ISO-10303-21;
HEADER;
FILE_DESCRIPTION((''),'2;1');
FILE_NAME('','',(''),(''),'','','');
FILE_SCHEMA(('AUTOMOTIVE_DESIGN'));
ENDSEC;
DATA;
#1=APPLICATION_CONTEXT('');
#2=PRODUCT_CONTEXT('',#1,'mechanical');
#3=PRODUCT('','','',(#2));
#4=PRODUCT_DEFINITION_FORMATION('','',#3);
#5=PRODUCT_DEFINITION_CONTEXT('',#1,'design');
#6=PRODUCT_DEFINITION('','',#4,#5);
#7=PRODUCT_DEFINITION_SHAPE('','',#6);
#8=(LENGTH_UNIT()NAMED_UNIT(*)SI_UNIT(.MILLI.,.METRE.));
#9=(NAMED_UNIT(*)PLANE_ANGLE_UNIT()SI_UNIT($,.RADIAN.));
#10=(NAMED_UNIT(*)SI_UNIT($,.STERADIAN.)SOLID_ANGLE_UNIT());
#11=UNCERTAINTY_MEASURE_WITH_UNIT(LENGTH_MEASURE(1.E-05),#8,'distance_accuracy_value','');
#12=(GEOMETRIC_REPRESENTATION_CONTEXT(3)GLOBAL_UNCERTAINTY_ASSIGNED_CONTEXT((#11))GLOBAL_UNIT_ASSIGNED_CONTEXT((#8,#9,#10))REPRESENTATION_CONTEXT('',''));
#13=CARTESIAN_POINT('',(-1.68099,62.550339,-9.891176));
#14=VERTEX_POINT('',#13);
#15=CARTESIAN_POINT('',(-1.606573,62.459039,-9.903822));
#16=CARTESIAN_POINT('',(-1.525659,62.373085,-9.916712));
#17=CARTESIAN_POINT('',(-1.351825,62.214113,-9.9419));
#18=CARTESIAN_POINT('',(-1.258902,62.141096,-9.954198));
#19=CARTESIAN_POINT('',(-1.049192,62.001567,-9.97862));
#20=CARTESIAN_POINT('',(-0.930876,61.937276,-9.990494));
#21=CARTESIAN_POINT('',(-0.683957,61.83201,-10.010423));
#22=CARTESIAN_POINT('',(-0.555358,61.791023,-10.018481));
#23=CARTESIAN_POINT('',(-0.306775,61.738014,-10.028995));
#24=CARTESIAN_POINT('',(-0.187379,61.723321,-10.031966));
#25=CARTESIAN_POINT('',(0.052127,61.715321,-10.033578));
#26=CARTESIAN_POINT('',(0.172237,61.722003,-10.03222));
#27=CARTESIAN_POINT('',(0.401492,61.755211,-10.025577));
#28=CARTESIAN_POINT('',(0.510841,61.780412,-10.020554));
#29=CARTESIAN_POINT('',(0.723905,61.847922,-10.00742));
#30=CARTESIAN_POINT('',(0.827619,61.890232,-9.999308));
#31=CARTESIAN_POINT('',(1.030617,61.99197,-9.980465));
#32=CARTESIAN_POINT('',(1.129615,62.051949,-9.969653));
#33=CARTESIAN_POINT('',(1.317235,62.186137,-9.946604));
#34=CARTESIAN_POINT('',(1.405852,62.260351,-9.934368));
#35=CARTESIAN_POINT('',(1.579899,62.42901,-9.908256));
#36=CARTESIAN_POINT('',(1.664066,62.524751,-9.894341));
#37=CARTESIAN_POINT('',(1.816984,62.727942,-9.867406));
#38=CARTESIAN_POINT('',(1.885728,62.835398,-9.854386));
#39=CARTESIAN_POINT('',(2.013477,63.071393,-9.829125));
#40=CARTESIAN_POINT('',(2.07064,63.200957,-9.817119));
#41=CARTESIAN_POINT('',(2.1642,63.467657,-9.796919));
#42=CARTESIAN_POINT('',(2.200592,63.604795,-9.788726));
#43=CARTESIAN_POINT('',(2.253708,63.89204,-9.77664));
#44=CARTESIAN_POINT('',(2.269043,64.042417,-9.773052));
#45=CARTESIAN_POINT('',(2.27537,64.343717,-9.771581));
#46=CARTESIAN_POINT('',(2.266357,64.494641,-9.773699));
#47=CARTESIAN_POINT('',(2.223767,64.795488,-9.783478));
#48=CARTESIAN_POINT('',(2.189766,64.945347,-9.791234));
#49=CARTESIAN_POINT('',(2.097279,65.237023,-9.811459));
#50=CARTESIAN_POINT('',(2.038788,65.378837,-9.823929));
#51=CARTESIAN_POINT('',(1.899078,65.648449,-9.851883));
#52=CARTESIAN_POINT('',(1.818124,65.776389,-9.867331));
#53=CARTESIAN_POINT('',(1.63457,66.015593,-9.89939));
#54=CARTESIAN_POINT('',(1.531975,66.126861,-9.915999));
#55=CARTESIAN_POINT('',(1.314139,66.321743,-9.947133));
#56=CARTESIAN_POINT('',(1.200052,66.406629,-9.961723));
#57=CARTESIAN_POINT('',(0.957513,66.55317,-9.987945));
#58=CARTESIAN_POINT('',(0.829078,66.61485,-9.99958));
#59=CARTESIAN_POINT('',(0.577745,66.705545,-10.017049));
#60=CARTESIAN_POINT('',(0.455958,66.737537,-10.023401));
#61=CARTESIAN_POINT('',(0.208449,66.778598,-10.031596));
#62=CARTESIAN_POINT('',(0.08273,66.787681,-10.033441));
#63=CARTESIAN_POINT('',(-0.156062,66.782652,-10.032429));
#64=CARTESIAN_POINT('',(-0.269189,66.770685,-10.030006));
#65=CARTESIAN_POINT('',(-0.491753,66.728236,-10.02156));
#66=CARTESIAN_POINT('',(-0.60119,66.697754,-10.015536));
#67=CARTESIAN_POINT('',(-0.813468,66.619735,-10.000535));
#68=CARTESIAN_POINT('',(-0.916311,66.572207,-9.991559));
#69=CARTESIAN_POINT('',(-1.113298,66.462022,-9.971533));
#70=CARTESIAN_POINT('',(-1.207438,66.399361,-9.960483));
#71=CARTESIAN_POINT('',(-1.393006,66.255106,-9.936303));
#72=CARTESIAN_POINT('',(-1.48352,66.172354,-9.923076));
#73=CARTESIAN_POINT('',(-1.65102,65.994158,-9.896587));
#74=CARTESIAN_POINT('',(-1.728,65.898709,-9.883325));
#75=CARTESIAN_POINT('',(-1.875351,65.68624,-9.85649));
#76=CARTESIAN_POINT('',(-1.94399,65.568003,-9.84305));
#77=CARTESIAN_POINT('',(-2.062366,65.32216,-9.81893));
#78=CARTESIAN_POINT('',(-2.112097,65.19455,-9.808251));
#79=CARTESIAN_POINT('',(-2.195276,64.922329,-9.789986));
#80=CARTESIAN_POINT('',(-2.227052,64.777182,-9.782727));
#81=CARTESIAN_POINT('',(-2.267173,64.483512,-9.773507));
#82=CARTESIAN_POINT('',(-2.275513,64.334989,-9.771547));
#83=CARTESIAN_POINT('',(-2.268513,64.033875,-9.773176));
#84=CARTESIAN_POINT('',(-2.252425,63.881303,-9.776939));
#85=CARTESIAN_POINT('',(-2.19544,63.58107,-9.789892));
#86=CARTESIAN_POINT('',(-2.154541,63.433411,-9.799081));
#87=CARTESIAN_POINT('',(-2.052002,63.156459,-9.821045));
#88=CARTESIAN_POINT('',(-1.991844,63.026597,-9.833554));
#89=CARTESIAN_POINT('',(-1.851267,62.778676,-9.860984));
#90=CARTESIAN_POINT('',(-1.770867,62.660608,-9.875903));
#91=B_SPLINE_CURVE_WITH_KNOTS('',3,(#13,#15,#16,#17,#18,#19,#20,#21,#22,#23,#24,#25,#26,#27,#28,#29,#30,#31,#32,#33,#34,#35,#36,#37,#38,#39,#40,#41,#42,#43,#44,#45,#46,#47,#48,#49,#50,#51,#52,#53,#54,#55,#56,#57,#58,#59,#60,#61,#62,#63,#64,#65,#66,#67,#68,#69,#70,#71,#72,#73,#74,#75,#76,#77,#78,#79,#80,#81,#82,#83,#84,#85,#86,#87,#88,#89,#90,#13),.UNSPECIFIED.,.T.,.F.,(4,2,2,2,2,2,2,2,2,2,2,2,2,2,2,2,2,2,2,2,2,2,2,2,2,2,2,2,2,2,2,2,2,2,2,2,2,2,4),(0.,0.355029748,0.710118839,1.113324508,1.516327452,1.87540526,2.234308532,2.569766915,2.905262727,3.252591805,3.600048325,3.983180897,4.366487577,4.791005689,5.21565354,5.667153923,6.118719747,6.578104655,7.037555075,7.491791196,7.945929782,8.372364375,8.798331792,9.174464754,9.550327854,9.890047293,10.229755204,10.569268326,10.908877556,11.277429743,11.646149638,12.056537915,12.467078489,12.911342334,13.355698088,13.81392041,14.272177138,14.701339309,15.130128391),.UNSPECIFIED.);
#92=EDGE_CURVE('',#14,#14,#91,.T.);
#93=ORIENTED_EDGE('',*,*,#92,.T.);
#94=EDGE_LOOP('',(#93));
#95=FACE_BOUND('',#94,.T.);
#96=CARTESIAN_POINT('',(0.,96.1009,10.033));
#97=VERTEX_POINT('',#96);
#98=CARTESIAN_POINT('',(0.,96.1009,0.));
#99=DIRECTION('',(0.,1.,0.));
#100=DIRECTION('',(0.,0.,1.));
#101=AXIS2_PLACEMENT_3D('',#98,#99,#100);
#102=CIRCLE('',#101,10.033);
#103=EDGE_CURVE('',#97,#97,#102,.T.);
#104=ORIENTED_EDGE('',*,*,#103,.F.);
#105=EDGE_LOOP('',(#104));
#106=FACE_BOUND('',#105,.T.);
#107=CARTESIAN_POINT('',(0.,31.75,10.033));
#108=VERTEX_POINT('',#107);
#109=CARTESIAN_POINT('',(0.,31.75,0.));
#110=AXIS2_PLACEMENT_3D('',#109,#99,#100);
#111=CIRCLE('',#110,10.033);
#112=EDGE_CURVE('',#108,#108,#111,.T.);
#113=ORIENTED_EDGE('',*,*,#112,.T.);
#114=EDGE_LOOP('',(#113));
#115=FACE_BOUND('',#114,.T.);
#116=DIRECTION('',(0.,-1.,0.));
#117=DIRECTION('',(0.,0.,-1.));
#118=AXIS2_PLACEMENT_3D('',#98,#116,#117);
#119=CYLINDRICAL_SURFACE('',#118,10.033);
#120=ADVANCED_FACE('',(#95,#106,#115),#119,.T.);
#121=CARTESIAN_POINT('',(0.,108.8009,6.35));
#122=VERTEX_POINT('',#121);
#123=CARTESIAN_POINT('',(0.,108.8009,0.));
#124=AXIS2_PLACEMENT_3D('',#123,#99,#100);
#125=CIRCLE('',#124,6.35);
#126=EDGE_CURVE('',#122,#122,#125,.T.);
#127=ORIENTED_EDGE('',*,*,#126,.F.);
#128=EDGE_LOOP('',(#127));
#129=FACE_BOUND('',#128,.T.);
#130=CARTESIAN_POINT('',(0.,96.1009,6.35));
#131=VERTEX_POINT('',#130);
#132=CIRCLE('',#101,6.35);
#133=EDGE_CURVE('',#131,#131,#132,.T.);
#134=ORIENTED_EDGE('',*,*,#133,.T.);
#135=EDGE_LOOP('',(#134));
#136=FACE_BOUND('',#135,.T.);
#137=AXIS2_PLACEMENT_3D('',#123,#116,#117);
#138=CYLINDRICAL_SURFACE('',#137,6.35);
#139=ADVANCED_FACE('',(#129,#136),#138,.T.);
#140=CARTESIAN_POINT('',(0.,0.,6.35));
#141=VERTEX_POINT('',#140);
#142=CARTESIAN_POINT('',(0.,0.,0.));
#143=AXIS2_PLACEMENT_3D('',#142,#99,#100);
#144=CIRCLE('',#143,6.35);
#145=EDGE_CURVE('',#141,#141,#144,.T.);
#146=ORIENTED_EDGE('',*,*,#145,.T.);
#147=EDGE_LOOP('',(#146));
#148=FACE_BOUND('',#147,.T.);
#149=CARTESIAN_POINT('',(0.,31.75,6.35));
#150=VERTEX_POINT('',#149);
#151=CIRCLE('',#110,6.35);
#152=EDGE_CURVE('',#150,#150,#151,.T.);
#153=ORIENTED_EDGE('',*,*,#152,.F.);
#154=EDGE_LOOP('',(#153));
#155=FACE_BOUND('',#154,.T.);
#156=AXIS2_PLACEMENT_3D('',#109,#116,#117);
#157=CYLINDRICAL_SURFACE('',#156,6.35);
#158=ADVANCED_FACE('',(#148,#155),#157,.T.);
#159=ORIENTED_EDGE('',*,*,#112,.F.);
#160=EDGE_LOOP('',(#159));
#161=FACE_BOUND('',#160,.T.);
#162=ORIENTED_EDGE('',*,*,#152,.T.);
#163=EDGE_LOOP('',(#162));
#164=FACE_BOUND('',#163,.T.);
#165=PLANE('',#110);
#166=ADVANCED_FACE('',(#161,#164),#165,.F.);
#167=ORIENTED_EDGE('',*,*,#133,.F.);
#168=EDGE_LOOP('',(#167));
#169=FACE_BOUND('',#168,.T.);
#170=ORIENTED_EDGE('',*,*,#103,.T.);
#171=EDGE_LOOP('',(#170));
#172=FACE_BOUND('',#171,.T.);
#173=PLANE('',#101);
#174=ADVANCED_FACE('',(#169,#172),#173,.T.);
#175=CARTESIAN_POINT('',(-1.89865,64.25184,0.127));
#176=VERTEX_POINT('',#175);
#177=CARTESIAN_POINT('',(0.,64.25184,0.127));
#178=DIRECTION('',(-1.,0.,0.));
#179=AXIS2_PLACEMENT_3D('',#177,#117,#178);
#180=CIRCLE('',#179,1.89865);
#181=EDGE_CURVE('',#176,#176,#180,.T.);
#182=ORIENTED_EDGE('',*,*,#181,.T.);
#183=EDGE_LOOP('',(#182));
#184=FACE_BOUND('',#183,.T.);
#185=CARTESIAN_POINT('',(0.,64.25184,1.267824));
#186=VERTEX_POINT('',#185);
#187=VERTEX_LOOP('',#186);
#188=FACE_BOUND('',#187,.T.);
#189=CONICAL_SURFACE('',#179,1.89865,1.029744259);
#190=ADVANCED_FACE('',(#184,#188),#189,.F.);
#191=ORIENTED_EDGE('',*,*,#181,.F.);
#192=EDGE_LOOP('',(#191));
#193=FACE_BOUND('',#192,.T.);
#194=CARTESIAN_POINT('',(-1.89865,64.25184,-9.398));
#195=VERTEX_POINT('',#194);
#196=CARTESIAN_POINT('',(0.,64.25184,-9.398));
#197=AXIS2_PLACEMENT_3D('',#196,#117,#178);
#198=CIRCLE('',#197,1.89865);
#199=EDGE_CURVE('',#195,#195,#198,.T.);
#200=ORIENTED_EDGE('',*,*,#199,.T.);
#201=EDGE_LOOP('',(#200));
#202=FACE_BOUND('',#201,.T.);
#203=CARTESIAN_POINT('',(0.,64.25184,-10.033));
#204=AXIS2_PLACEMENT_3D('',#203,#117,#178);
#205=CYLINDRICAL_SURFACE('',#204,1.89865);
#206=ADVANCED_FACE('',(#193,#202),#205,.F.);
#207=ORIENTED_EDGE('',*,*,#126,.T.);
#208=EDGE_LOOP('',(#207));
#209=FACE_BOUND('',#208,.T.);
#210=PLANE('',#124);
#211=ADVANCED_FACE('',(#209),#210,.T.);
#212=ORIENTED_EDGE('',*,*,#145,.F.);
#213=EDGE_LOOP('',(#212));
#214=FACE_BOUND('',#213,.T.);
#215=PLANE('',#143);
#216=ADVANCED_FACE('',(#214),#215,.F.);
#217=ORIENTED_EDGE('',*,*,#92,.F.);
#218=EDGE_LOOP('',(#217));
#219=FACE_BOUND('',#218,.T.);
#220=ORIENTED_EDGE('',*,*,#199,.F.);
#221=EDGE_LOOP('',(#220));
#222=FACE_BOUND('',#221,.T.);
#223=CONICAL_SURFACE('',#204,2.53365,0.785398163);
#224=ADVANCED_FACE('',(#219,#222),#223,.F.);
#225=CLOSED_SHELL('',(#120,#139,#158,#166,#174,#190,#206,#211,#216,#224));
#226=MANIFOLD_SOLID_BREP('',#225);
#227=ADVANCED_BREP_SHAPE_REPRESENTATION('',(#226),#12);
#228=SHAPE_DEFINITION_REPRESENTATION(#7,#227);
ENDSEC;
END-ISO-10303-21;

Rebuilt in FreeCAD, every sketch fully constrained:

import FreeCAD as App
import Part
import Sketcher

V = App.Vector
Q = App.Units.Quantity

doc = App.newDocument("Part")
body = doc.addObject("PartDesign::Body", "Body")

sketch1 = body.newObject("Sketcher::SketchObject", "Sketch")
sketch1.AttachmentSupport = (doc.getObject("XZ_Plane"), [""])
sketch1.MapMode = "FlatFace"
sketch1.addGeometry(Part.Circle(V(0, 0, 0), V(0, 0, 1), 6), False)
sketch1.addConstraint(Sketcher.Constraint("Coincident", 0, 3, -1, 1))
sketch1.addConstraint(Sketcher.Constraint("Diameter", 0, Q("0.5 in")))
pad1 = body.newObject("PartDesign::Pad", "Pad")
pad1.Profile = sketch1
pad1.Length = Q("1.25 in")
pad1.Reversed = True

sketch2 = body.newObject("Sketcher::SketchObject", "Sketch001")
sketch2.AttachmentSupport = (doc.getObject("XZ_Plane"), [""])
sketch2.MapMode = "FlatFace"
sketch2.AttachmentOffset = App.Placement(V(0, 0, -1.25 * 25.4), App.Rotation())
sketch2.addGeometry(Part.Circle(V(0, 0, 0), V(0, 0, 1), 10), False)
sketch2.addConstraint(Sketcher.Constraint("Coincident", 0, 3, -1, 1))
sketch2.addConstraint(Sketcher.Constraint("Diameter", 0, Q("0.79 in")))
pad2 = body.newObject("PartDesign::Pad", "Pad001")
pad2.Profile = sketch2
pad2.Length = Q("2.5335 in")
pad2.Reversed = True

sketch3 = body.newObject("Sketcher::SketchObject", "Sketch002")
sketch3.AttachmentSupport = (doc.getObject("XZ_Plane"), [""])
sketch3.MapMode = "FlatFace"
sketch3.AttachmentOffset = App.Placement(V(0, 0, -3.7835 * 25.4), App.Rotation())
sketch3.addGeometry(Part.Circle(V(0, 0, 0), V(0, 0, 1), 6), False)
sketch3.addConstraint(Sketcher.Constraint("Coincident", 0, 3, -1, 1))
sketch3.addConstraint(Sketcher.Constraint("Diameter", 0, Q("0.5 in")))
pad3 = body.newObject("PartDesign::Pad", "Pad002")
pad3.Profile = sketch3
pad3.Length = Q("0.5 in")
pad3.Reversed = True

sketch4 = body.newObject("Sketcher::SketchObject", "Sketch003")
sketch4.AttachmentSupport = (doc.getObject("XY_Plane"), [""])
sketch4.MapMode = "FlatFace"
sketch4.AttachmentOffset = App.Placement(V(0, 0, -0.395 * 25.4), App.Rotation())
sketch4.addGeometry(Part.Circle(V(0, 64.3, 0), V(0, 0, 1), 1.9), False)
sketch4.addConstraint(Sketcher.Constraint("PointOnObject", 0, 3, -2))
sketch4.addConstraint(Sketcher.Constraint("Diameter", 0, Q("0.1495 in")))
sketch4.addConstraint(Sketcher.Constraint("DistanceY", -1, 1, 0, 3, Q("2.5296 in")))
doc.recompute()
hole = body.newObject("PartDesign::Hole", "Hole")
hole.Profile = sketch4
hole.ThreadType = "None"
hole.Diameter = Q("0.1495 in")
hole.DepthType = "Dimension"
hole.Depth = Q("0.4 in")
hole.DrillPoint = "Angled"
hole.DrillPointAngle = 118
hole.HoleCutType = "Countersink"
hole.HoleCutDiameter = Q("0.1995 in")
hole.HoleCutCountersinkAngle = 90
hole.Reversed = True

doc.recompute()
